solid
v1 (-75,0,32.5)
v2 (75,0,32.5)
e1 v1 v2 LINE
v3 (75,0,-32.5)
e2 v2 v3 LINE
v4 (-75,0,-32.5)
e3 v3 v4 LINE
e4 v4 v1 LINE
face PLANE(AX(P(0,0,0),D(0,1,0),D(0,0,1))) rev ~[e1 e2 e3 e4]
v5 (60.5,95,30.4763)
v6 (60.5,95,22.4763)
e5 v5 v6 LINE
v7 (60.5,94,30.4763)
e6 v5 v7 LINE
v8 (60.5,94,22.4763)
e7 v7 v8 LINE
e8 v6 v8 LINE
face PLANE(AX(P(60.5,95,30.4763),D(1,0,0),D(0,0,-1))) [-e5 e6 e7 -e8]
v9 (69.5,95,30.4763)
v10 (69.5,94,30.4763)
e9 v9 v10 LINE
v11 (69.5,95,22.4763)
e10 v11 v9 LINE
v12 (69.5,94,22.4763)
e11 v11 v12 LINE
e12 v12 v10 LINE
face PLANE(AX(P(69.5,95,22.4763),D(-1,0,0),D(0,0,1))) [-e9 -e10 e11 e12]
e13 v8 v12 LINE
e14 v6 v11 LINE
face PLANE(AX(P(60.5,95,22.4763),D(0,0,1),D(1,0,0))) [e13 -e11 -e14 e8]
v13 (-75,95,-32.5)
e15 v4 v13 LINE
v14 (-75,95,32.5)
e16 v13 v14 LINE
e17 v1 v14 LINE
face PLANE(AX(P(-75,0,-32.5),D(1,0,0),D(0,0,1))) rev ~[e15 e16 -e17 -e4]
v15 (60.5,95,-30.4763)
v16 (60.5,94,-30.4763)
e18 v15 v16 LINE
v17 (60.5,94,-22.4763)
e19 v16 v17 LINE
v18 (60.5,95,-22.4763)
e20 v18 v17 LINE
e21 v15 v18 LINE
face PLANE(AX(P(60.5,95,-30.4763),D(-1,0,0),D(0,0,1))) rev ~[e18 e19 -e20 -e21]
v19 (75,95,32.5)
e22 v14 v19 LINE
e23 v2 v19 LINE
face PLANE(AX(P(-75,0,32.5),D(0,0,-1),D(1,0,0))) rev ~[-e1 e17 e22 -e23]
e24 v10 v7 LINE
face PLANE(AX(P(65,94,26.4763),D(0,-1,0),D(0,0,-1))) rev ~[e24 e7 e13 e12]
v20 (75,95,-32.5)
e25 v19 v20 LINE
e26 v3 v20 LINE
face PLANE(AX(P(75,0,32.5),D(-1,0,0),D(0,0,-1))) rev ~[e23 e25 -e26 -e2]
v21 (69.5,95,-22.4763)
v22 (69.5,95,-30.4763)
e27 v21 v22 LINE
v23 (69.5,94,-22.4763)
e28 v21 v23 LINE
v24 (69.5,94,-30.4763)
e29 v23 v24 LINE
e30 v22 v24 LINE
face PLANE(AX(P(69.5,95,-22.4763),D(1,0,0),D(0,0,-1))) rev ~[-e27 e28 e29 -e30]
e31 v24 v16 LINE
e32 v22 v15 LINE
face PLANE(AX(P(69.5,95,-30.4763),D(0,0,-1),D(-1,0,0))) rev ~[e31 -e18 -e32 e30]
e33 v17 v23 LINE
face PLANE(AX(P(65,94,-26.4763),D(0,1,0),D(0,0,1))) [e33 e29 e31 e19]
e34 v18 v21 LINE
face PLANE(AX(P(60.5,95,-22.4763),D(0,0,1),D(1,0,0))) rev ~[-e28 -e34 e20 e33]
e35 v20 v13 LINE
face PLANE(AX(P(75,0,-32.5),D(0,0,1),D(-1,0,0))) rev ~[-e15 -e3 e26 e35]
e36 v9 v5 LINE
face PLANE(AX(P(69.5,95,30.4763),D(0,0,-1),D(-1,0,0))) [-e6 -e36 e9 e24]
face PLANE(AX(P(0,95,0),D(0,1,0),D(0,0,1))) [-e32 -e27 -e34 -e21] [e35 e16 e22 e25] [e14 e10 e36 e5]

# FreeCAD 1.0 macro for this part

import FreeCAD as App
import Part
import Sketcher
Q = App.Units.Quantity


def add_polygon(sketch, points):
    """Adds a closed chain of lines whose ends are joined by coincident constraints."""
    first, n = sketch.GeometryCount, len(points)
    for a, b in zip(points, points[1:] + points[:1]):
        sketch.addGeometry(Part.LineSegment(App.Vector(*a, 0), App.Vector(*b, 0)), False)
    for i in range(n):
        sketch.addConstraint(Sketcher.Constraint("Coincident", first + i, 2, first + (i + 1) % n, 1))

doc = App.newDocument("Part")
body = doc.addObject("PartDesign::Body", "Body")

# Sketch on XZ plane
sketch1 = body.newObject("Sketcher::SketchObject", "Sketch")
sketch1.AttachmentSupport = (doc.getObject("XZ_Plane"), [""])
sketch1.MapMode = "FlatFace"
add_polygon(sketch1, [(-75, -32), (75, -32), (75, 32), (-75, 32)])  # lines 0-3
sketch1.addConstraint(Sketcher.Constraint("Horizontal", 0))
sketch1.addConstraint(Sketcher.Constraint("Vertical", 1))
sketch1.addConstraint(Sketcher.Constraint("Horizontal", 2))
sketch1.addConstraint(Sketcher.Constraint("Vertical", 3))
sketch1.addConstraint(Sketcher.Constraint("Symmetric", 0, 2, 2, 2, -1, 1))
sketch1.addConstraint(Sketcher.Constraint("DistanceX", 0, 1, 0, 2, Q("150 mm")))
sketch1.addConstraint(Sketcher.Constraint("DistanceY", 1, 1, 1, 2, Q("65 mm")))
pad1 = body.newObject("PartDesign::Pad", "Pad")
pad1.Profile = sketch1
pad1.Length = 95
pad1.Reversed = True

# Sketch on XZ plane
sketch2 = body.newObject("Sketcher::SketchObject", "Sketch001")
sketch2.AttachmentSupport = (doc.getObject("XZ_Plane"), [""])
sketch2.MapMode = "FlatFace"
sketch2.AttachmentOffset = App.Placement(App.Vector(0, 0, -95), App.Rotation())
add_polygon(sketch2, [(70, 30), (70, 22), (60, 22), (60, 30)])  # lines 0-3
add_polygon(sketch2, [(70, -30), (60, -30), (60, -22), (70, -22)])  # lines 4-7
sketch2.addConstraint(Sketcher.Constraint("Vertical", 0))
sketch2.addConstraint(Sketcher.Constraint("Horizontal", 1))
sketch2.addConstraint(Sketcher.Constraint("Vertical", 2))
sketch2.addConstraint(Sketcher.Constraint("Horizontal", 3))
sketch2.addConstraint(Sketcher.Constraint("Horizontal", 4))
sketch2.addConstraint(Sketcher.Constraint("Vertical", 5))
sketch2.addConstraint(Sketcher.Constraint("Horizontal", 6))
sketch2.addConstraint(Sketcher.Constraint("Vertical", 7))
sketch2.addConstraint(Sketcher.Constraint("Symmetric", 2, 2, 4, 2, -1))
sketch2.addConstraint(Sketcher.Constraint("Symmetric", 0, 2, 6, 2, -1))
sketch2.addConstraint(Sketcher.Constraint("DistanceX", 1, 2, 1, 1, Q("9 mm")))
sketch2.addConstraint(Sketcher.Constraint("DistanceY", 0, 2, 0, 1, Q("8 mm")))
sketch2.addConstraint(Sketcher.Constraint("DistanceX", -1, 1, 0, 2, Q("69.5 mm")))
sketch2.addConstraint(Sketcher.Constraint("DistanceY", -1, 1, 0, 2, Q("22.4763 mm")))
pocket1 = body.newObject("PartDesign::Pocket", "Pocket")
pocket1.Profile = sketch2
pocket1.Length = 1
pocket1.Reversed = True

doc.recompute()
